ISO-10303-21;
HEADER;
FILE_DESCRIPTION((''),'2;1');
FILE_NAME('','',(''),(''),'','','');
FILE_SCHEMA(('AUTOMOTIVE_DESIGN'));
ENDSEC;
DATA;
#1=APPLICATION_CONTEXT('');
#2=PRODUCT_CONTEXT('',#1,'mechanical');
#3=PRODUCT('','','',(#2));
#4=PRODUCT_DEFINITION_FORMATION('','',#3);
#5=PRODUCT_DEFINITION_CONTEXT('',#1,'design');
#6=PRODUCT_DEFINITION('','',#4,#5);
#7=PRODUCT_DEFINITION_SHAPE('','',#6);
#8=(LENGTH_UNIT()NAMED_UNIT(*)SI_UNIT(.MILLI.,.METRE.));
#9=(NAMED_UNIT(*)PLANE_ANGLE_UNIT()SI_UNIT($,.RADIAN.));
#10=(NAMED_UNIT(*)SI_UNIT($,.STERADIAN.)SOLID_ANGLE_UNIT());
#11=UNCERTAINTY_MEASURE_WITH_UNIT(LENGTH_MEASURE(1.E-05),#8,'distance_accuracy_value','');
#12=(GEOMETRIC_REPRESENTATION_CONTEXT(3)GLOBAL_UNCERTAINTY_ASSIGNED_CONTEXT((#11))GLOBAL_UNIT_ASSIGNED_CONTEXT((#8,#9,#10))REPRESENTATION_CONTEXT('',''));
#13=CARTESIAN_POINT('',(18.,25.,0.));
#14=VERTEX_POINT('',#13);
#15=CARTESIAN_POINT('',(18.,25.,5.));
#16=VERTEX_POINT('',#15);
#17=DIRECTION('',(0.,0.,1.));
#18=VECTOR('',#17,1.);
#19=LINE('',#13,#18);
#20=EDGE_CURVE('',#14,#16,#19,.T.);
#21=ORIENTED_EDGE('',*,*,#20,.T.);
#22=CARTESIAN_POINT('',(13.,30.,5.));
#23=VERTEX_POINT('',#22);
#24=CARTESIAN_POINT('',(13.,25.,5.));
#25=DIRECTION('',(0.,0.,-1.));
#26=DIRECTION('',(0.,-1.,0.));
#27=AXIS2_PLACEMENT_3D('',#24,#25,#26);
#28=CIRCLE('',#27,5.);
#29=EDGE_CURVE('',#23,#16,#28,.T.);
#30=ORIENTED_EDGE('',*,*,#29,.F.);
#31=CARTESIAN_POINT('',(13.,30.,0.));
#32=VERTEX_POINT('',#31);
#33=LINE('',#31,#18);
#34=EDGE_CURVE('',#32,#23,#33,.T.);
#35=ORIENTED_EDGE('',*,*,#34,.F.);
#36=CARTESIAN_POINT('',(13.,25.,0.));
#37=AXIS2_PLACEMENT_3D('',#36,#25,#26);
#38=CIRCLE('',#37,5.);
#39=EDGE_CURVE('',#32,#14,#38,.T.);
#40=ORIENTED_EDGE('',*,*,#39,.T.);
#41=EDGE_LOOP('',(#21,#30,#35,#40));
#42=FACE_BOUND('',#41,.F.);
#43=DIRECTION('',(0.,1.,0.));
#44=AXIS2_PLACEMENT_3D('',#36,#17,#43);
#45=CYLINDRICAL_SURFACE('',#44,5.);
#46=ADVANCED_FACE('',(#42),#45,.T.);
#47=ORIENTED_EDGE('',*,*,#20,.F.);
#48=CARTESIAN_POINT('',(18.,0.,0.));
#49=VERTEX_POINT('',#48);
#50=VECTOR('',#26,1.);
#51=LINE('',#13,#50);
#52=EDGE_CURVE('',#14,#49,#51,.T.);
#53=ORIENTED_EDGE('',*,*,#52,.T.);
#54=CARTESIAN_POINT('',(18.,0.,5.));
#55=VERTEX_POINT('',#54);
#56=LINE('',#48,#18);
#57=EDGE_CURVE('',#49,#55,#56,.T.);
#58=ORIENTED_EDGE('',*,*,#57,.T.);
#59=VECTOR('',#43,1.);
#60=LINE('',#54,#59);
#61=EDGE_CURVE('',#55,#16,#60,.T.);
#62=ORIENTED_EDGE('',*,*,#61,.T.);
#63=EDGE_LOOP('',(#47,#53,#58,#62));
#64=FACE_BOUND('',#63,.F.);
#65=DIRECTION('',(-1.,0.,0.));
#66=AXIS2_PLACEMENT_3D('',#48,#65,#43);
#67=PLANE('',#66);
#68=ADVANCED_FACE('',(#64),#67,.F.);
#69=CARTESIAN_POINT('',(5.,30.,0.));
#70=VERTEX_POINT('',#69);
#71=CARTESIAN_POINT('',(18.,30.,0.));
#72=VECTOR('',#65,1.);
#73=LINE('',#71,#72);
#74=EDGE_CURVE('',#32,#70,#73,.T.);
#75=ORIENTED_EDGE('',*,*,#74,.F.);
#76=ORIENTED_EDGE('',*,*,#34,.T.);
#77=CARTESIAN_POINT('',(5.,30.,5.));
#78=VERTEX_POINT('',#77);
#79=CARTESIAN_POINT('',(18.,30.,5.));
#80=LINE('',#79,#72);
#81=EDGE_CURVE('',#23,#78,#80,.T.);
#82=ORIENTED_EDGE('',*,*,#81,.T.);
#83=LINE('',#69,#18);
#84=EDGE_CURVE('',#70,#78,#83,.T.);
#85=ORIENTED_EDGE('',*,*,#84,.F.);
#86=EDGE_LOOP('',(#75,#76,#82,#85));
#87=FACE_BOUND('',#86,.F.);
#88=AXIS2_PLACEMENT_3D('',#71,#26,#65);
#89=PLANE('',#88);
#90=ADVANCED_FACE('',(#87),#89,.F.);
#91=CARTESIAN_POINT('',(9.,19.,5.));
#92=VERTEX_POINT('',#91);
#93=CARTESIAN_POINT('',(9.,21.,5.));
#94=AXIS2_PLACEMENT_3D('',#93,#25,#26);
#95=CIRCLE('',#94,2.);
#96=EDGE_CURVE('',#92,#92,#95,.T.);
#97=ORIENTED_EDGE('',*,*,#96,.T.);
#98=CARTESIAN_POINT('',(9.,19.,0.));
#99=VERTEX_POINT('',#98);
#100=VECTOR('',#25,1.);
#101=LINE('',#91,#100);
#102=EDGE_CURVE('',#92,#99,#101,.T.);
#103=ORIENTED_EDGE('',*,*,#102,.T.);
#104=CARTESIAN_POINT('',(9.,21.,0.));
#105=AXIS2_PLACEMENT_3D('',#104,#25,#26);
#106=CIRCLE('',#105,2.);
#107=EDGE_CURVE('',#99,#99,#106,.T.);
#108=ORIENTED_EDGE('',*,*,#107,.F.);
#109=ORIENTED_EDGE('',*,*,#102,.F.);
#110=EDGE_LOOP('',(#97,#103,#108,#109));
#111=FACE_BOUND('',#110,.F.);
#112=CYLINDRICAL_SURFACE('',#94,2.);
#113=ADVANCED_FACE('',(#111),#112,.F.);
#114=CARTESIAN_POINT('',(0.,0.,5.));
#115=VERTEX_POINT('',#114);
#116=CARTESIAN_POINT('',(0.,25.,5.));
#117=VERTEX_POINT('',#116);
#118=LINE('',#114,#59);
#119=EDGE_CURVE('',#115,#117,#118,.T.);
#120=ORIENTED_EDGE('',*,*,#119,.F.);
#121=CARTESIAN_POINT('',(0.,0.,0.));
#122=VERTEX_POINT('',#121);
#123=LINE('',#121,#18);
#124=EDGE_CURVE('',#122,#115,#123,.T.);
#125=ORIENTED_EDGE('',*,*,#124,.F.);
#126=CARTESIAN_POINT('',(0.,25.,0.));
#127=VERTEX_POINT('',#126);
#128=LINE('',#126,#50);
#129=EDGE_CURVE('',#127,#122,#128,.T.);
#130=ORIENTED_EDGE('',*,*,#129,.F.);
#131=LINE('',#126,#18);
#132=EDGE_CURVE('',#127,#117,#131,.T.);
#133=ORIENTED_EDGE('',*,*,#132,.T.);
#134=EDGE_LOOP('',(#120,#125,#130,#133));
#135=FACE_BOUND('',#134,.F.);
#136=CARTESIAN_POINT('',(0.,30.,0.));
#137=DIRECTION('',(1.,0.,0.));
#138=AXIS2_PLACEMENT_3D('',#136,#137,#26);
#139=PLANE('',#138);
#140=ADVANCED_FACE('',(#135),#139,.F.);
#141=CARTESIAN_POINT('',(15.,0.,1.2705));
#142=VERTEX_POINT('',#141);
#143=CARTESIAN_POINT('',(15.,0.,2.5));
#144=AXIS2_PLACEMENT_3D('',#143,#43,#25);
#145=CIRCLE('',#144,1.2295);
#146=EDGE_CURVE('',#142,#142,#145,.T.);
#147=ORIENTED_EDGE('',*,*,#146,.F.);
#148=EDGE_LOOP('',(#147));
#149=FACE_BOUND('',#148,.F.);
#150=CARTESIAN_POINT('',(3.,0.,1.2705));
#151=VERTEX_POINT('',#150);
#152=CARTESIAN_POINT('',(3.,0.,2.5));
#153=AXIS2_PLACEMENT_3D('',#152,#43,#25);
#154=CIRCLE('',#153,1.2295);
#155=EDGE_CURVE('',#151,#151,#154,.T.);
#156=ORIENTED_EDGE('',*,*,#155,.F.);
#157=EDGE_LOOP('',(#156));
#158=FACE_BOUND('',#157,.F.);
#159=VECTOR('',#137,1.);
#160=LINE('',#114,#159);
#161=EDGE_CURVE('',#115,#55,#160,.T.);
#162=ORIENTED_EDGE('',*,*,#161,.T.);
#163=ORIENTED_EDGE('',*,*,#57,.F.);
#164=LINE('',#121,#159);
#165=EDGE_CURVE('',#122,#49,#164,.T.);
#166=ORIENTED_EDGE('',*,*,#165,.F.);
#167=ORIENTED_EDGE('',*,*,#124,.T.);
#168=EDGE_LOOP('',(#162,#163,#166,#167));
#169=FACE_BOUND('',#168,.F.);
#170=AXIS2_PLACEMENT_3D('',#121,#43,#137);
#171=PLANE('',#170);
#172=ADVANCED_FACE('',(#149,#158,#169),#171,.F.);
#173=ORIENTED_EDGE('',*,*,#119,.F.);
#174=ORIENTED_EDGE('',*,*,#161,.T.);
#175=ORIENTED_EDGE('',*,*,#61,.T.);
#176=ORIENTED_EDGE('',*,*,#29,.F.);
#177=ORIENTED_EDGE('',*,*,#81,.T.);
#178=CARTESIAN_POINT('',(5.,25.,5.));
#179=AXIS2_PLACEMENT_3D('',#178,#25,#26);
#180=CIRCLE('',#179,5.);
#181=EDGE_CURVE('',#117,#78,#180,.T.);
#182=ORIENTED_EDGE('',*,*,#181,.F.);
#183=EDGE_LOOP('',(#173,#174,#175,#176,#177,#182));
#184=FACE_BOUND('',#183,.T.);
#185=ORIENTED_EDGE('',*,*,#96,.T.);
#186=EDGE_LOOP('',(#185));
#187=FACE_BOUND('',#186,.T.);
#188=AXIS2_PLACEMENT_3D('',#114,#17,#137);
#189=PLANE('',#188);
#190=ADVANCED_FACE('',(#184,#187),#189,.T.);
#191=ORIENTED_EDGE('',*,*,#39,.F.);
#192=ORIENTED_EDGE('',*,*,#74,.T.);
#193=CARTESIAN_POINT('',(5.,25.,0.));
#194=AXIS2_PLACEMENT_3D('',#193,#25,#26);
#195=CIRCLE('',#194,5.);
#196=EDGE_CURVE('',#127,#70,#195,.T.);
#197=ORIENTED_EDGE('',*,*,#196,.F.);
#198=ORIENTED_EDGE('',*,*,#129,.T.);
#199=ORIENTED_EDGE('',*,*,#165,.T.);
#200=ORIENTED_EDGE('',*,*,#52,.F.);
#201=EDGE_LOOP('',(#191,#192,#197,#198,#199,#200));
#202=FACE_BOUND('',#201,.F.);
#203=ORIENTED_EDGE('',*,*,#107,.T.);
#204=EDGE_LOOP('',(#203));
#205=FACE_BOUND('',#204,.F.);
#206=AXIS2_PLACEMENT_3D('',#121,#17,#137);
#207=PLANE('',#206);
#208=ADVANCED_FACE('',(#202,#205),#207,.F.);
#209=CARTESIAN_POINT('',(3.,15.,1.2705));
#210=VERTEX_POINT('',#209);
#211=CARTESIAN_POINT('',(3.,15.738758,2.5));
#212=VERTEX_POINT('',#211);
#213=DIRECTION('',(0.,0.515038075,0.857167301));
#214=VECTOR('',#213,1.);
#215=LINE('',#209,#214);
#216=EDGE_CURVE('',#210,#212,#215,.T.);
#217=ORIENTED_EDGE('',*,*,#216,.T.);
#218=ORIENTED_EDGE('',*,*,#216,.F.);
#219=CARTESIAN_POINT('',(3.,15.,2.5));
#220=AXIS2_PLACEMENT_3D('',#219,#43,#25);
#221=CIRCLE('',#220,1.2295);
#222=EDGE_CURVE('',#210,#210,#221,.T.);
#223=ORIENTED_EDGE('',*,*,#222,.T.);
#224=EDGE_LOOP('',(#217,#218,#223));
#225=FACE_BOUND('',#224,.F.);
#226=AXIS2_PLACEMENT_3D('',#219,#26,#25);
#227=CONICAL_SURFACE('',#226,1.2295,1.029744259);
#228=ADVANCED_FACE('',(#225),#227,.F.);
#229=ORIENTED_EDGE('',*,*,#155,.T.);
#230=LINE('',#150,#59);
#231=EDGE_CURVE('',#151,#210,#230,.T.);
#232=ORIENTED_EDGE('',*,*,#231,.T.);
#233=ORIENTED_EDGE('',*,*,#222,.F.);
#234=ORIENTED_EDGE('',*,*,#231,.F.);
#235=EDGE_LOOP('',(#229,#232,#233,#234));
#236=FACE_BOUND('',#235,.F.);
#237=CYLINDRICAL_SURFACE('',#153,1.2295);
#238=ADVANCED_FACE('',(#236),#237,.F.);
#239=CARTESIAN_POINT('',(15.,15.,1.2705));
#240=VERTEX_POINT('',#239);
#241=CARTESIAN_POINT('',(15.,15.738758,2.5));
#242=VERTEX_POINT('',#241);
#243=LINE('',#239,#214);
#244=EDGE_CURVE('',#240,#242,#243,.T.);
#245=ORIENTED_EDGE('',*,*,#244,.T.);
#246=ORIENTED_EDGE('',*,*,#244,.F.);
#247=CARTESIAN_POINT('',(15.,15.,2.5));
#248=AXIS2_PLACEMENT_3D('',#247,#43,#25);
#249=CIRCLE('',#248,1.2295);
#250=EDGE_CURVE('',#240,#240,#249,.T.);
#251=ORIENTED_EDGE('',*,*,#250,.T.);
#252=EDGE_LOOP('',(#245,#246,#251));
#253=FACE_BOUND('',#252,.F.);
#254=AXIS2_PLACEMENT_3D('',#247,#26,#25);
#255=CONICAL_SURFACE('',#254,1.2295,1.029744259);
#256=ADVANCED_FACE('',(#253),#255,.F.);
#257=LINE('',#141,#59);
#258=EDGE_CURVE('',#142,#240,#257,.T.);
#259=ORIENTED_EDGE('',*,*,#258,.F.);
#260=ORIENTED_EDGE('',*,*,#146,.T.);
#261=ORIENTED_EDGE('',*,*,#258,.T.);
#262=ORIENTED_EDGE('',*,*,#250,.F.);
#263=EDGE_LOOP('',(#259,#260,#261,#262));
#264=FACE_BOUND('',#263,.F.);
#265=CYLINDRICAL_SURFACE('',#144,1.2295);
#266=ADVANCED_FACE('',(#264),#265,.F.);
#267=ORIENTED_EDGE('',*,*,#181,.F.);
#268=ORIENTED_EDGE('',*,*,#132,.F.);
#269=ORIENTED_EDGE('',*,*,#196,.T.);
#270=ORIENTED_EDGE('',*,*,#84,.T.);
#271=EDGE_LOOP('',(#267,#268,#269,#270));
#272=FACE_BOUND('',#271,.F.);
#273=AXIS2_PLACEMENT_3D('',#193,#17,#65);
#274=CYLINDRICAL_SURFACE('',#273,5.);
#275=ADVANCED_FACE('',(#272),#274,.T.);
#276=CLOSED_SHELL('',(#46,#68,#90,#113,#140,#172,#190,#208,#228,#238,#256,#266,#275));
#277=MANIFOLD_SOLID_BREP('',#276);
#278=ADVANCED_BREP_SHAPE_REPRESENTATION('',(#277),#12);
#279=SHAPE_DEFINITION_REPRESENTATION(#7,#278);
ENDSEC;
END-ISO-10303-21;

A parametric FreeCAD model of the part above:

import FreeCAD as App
import Part
import Sketcher

V = App.Vector
Q = App.Units.Quantity


def edges_at(feature, points):
    """Names of the edges that pass closest to the given points."""
    edges = feature.Shape.Edges
    near = lambda p: min(range(len(edges)), key=lambda i: edges[i].distToShape(Part.Vertex(*p))[0])
    return sorted({f"Edge{near(p) + 1}" for p in points})

doc = App.newDocument("Part")
body = doc.addObject("PartDesign::Body", "Body")

sketch1 = doc.addObject("Sketcher::SketchObject", "Sketch")
body.addObject(sketch1)
sketch1.AttachmentSupport = (doc.XY_Plane, [""])
sketch1.MapMode = "FlatFace"
sketch1.addGeometry([
    Part.LineSegment(V(0, 30, 0), V(0, 0, 0)),
    Part.LineSegment(V(0, 0, 0), V(18, 0, 0)),
    Part.LineSegment(V(18, 0, 0), V(18, 30, 0)),
    Part.LineSegment(V(18, 30, 0), V(0, 30, 0)),
], False)
sketch1.addConstraint([
    Sketcher.Constraint("Coincident", 0, 2, 1, 1),
    Sketcher.Constraint("Coincident", 1, 2, 2, 1),
    Sketcher.Constraint("Coincident", 2, 2, 3, 1),
    Sketcher.Constraint("Coincident", 3, 2, 0, 1),
    Sketcher.Constraint("Vertical", 0),
    Sketcher.Constraint("Horizontal", 1),
    Sketcher.Constraint("Vertical", 2),
    Sketcher.Constraint("Horizontal", 3),
    Sketcher.Constraint("Coincident", 0, 2, -1, 1),
    Sketcher.Constraint("DistanceY", 0, 2, 0, 1, Q("30 mm")),
    Sketcher.Constraint("DistanceX", 1, 1, 1, 2, Q("18 mm")),
])
pad1 = doc.addObject("PartDesign::Pad", "Pad")
body.addObject(pad1)
pad1.Profile = sketch1
pad1.Length = 5
doc.recompute()

fillet = doc.addObject("PartDesign::Fillet", "Fillet")
body.addObject(fillet)
fillet.Base = (pad1, edges_at(pad1, [(0, 30, 2.5), (18, 30, 2.5)]))
fillet.Radius = 5

sketch2 = doc.addObject("Sketcher::SketchObject", "Sketch001")
body.addObject(sketch2)
sketch2.AttachmentSupport = (doc.XY_Plane, [""])
sketch2.MapMode = "FlatFace"
sketch2.AttachmentOffset = App.Placement(V(0, 0, 5), App.Rotation())
sketch2.addGeometry(Part.Circle(V(9, 21, 0), V(0, 0, 1), 2), False)
sketch2.addConstraint([
    Sketcher.Constraint("Diameter", 0, Q("4 mm")),
    Sketcher.Constraint("DistanceX", -1, 1, 0, 3, Q("9 mm")),
    Sketcher.Constraint("DistanceY", -1, 1, 0, 3, Q("21 mm")),
])
doc.recompute()
hole = doc.addObject("PartDesign::Hole", "Hole")
body.addObject(hole)
hole.Profile = sketch2
hole.ThreadType = "None"
hole.Diameter = 4
hole.DepthType = "Dimension"
hole.Depth = 20
hole.DrillPoint = "Angled"
hole.DrillPointAngle = 118

sketch3 = doc.addObject("Sketcher::SketchObject", "Sketch002")
body.addObject(sketch3)
sketch3.AttachmentSupport = (doc.XZ_Plane, [""])
sketch3.MapMode = "FlatFace"
sketch3.addGeometry([
    Part.Circle(V(3, 2.5, 0), V(0, 0, 1), 1.2),
    Part.Circle(V(15, 2.5, 0), V(0, 0, 1), 1.2),
], False)
sketch3.addConstraint([
    Sketcher.Constraint("Equal", 0, 1),
    Sketcher.Constraint("Horizontal", 0, 3, 1, 3),
    Sketcher.Constraint("Diameter", 0, Q("2.459 mm")),
    Sketcher.Constraint("DistanceX", -1, 1, 0, 3, Q("3 mm")),
    Sketcher.Constraint("DistanceX", -1, 1, 1, 3, Q("15 mm")),
    Sketcher.Constraint("DistanceY", -1, 1, 0, 3, Q("2.5 mm")),
])
doc.recompute()
hole2 = doc.addObject("PartDesign::Hole", "Hole001")
body.addObject(hole2)
hole2.Profile = sketch3
hole2.ThreadType = "None"
hole2.Diameter = 2.459
hole2.DepthType = "Dimension"
hole2.Depth = 15
hole2.DrillPoint = "Angled"
hole2.DrillPointAngle = 118

doc.recompute()
